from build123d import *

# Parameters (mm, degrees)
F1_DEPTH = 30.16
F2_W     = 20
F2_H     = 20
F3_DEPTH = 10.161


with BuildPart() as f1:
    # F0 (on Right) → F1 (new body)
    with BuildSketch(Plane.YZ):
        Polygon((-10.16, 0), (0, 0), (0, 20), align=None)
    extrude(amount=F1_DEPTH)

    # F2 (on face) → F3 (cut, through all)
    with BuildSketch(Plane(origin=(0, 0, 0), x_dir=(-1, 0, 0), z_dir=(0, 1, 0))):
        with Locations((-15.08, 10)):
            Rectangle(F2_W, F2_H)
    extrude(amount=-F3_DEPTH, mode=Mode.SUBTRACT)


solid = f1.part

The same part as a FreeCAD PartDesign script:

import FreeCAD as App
import Part
import Sketcher


def add_polygon(sketch, points):
    """Adds a closed chain of lines whose ends are joined by coincident constraints."""
    first, n = sketch.GeometryCount, len(points)
    for a, b in zip(points, points[1:] + points[:1]):
        sketch.addGeometry(Part.LineSegment(App.Vector(*a, 0), App.Vector(*b, 0)), False)
    for i in range(n):
        sketch.addConstraint(Sketcher.Constraint("Coincident", first + i, 2, first + (i + 1) % n, 1))

doc = App.newDocument("Part")
params = doc.addObject("Spreadsheet::Sheet", "Params")
for row, (alias, value) in enumerate([
    ("sketch1_height", "20 mm"),
    ("sketch1_width", "10.16 mm"),
    ("pad1_length", "30.16 mm"),
    ("sketch2_width", "20 mm"),
], start=1):
    params.set(f"A{row}", alias)
    params.set(f"B{row}", "=" + value)
    params.setAlias(f"B{row}", alias)

body = doc.addObject("PartDesign::Body", "Body")
body.AllowCompound = True

sketch1 = body.newObject("Sketcher::SketchObject", "Sketch")
sketch1.AttachmentSupport = (doc.getObject("YZ_Plane"), [""])
sketch1.MapMode = "FlatFace"
add_polygon(sketch1, [(-10, 0), (0, 0), (0, 20)])
sketch1.addConstraint([
    Sketcher.Constraint("Horizontal", 0),
    Sketcher.Constraint("Vertical", 1),
    Sketcher.Constraint("Coincident", 0, 2, -1, 1),
    Sketcher.Constraint("DistanceY", 1, 1, 1, 2, 20.0),
    Sketcher.Constraint("DistanceX", 0, 1, 0, 2, 10.16),
])
sketch1.setExpression("Constraints[6]", "Params.sketch1_height")
sketch1.setExpression("Constraints[7]", "Params.sketch1_width")
pad1 = body.newObject("PartDesign::Pad", "Pad")
pad1.Profile = sketch1
pad1.setExpression("Length", "Params.pad1_length")

sketch2 = body.newObject("Sketcher::SketchObject", "Sketch001")
sketch2.AttachmentSupport = (doc.getObject("XZ_Plane"), [""])
sketch2.MapMode = "FlatFace"
add_polygon(sketch2, [(25, 20), (25, 0), (5, 0), (5, 20)])
sketch2.addConstraint([
    Sketcher.Constraint("Vertical", 0),
    Sketcher.Constraint("Horizontal", 1),
    Sketcher.Constraint("Vertical", 2),
    Sketcher.Constraint("Horizontal", 3),
    Sketcher.Constraint("PointOnObject", 0, 2, -1),
    Sketcher.Constraint("Equal", 3, 0),
    Sketcher.Constraint("DistanceX", 1, 2, 1, 1, 20.0),
    Sketcher.Constraint("DistanceX", -1, 1, 0, 2, 25.08),
])
sketch2.setExpression("Constraints[10]", "Params.sketch2_width")
pocket1 = body.newObject("PartDesign::Pocket", "Pocket")
pocket1.Profile = sketch2
pocket1.Type = "ThroughAll"
pocket1.Reversed = True

doc.recompute()
